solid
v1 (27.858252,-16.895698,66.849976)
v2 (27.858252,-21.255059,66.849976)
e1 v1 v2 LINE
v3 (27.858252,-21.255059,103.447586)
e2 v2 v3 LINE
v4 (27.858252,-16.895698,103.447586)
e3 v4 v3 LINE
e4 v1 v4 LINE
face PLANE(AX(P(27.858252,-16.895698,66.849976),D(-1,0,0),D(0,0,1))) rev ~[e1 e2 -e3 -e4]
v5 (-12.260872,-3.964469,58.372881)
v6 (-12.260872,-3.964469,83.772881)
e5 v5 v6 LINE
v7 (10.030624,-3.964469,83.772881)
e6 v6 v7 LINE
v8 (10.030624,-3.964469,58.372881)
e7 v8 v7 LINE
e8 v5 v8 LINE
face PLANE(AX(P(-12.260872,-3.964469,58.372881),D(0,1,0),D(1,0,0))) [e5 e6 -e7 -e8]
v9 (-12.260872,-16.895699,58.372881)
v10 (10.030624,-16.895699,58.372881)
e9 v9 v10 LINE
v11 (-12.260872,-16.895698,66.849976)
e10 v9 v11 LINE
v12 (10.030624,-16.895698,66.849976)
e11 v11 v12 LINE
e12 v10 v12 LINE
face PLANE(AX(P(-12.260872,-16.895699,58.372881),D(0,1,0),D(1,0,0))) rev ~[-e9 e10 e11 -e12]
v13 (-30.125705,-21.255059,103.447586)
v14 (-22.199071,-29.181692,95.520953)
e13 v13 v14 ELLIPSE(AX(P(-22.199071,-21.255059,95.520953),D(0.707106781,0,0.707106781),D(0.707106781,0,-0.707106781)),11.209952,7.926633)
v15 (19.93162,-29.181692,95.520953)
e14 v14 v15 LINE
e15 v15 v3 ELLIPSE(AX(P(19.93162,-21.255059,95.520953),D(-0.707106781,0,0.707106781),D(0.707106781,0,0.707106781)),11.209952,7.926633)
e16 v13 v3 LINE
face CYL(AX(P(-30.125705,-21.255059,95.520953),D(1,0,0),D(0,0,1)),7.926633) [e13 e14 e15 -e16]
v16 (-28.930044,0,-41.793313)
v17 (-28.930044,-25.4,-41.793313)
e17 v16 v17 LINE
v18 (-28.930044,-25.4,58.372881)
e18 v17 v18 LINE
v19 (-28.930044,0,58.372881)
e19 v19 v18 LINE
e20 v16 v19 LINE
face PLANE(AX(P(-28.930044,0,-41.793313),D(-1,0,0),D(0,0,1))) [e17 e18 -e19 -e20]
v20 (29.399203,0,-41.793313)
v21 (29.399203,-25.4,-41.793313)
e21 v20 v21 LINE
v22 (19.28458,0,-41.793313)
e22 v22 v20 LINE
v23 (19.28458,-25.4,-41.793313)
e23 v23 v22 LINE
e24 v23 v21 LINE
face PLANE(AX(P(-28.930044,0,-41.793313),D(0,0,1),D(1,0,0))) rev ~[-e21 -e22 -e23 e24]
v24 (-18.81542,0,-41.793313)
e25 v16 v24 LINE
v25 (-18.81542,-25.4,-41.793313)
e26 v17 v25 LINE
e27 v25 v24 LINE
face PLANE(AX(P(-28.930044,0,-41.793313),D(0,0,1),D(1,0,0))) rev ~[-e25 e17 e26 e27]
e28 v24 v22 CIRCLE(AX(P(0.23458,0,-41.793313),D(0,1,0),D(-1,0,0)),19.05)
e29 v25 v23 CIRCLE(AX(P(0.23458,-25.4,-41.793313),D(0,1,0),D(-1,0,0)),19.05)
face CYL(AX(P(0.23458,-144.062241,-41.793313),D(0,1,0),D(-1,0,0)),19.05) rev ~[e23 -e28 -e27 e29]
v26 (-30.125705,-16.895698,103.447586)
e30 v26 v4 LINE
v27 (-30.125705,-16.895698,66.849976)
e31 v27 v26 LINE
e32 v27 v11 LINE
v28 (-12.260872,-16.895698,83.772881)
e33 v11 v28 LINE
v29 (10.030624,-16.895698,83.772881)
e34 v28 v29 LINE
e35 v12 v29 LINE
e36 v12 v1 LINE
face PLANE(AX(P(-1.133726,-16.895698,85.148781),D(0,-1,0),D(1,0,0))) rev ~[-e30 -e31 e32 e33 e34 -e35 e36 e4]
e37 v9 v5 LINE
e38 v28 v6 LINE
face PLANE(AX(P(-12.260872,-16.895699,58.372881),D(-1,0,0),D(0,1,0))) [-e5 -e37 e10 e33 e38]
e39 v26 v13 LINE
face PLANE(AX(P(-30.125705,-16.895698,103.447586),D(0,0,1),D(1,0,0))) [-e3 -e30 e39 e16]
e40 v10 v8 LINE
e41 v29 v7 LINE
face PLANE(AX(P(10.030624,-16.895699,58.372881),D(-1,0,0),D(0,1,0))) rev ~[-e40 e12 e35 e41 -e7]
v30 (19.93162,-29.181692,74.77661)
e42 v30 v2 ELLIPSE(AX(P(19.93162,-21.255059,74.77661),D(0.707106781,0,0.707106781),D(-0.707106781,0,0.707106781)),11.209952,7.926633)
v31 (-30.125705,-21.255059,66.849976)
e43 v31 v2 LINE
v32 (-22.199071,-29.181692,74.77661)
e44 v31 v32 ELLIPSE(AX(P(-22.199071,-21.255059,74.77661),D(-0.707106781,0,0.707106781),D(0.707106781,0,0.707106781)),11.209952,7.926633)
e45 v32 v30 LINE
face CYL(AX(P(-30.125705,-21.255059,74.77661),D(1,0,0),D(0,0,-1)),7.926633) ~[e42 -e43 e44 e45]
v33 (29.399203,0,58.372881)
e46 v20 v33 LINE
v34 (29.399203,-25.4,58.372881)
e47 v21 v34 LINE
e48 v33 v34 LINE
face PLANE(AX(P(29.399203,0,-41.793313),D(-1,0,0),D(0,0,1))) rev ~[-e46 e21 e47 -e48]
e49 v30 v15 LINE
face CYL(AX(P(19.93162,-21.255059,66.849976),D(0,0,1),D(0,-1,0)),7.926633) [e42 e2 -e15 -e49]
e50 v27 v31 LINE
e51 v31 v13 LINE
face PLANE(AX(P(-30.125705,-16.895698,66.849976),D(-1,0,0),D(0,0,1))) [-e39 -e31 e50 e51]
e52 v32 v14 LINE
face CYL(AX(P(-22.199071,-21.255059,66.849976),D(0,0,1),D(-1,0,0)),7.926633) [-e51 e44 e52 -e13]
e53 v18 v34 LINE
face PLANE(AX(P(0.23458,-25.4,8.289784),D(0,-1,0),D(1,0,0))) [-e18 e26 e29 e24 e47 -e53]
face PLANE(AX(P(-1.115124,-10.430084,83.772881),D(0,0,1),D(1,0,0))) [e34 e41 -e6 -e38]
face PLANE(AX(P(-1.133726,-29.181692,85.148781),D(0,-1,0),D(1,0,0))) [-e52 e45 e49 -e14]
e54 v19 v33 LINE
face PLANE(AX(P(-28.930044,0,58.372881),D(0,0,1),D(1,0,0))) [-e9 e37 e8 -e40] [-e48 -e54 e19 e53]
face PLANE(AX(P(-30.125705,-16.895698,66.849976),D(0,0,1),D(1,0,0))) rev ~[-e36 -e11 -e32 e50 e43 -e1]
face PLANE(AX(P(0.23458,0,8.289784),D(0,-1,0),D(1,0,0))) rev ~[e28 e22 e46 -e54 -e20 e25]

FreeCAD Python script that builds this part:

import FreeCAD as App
import Part
import Sketcher
from FreeCAD import Vector
Q = App.Units.Quantity


def edges_at(feature, points):
    """Names of the edges that pass closest to the given points."""
    edges = feature.Shape.Edges
    near = lambda p: min(range(len(edges)), key=lambda i: edges[i].distToShape(Part.Vertex(*p))[0])
    return sorted({f"Edge{near(p) + 1}" for p in points})

doc = App.newDocument("Part")
body = doc.addObject("PartDesign::Body", "Body")

# Sketch on XZ plane
sketch1 = body.newObject("Sketcher::SketchObject", "Sketch")
sketch1.AttachmentSupport = (doc.getObject("XZ_Plane"), [""])
sketch1.MapMode = "FlatFace"
sketch1.addGeometry([
    Part.LineSegment(Vector(-29, 58, 0), Vector(-29, -42, 0)),
    Part.LineSegment(Vector(-29, -42, 0), Vector(29, -42, 0)),
    Part.LineSegment(Vector(29, -42, 0), Vector(29, 58, 0)),
    Part.LineSegment(Vector(29, 58, 0), Vector(-29, 58, 0)),
], False)
sketch1.addConstraint([
    Sketcher.Constraint("Coincident", 0, 2, 1, 1),
    Sketcher.Constraint("Coincident", 1, 2, 2, 1),
    Sketcher.Constraint("Coincident", 2, 2, 3, 1),
    Sketcher.Constraint("Coincident", 3, 2, 0, 1),
    Sketcher.Constraint("Vertical", 0),
    Sketcher.Constraint("Horizontal", 1),
    Sketcher.Constraint("Vertical", 2),
    Sketcher.Constraint("Horizontal", 3),
    Sketcher.Constraint("DistanceX", 1, 1, 1, 2, Q("58.329247 mm")),
    Sketcher.Constraint("DistanceY", 0, 2, 0, 1, Q("100.166194 mm")),
    Sketcher.Constraint("DistanceY", -1, 1, 2, 2, Q("58.372881 mm")),
    Sketcher.Constraint("DistanceX", 0, 2, -1, 1, Q("28.930044 mm")),
])
pad1 = body.newObject("PartDesign::Pad", "Pad")
pad1.Profile = sketch1
pad1.Length = Q("1 in")

# Sketch on XZ plane
sketch2 = body.newObject("Sketcher::SketchObject", "Sketch001")
sketch2.AttachmentSupport = (doc.getObject("XZ_Plane"), [""])
sketch2.MapMode = "FlatFace"
sketch2.AttachmentOffset = App.Placement(Vector(0, 0, 1 * 25.4), App.Rotation())
sketch2.addGeometry(Part.Circle(Vector(0, -42, 0), Vector(0, 0, 1), 19), False)
sketch2.addConstraint([
    Sketcher.Constraint("Diameter", 0, Q("1.5 in")),
    Sketcher.Constraint("DistanceX", -1, 1, 0, 3, Q("0.23458 mm")),
    Sketcher.Constraint("DistanceY", 0, 3, -1, 1, Q("41.793313 mm")),
])
doc.recompute()
hole = body.newObject("PartDesign::Hole", "Hole")
hole.Profile = sketch2
hole.ThreadType = "None"
hole.Diameter = Q("1.5 in")
hole.DepthType = "ThroughAll"

# Sketch on XY plane
sketch3 = body.newObject("Sketcher::SketchObject", "Sketch002")
sketch3.AttachmentSupport = (doc.getObject("XY_Plane"), [""])
sketch3.MapMode = "FlatFace"
sketch3.AttachmentOffset = App.Placement(Vector(0, 0, 58.372881), App.Rotation())
sketch3.addGeometry([
    Part.LineSegment(Vector(-12, -4, 0), Vector(-12, -17, 0)),
    Part.LineSegment(Vector(-12, -17, 0), Vector(10, -17, 0)),
    Part.LineSegment(Vector(10, -17, 0), Vector(10, -4, 0)),
    Part.LineSegment(Vector(10, -4, 0), Vector(-12, -4, 0)),
], False)
sketch3.addConstraint([
    Sketcher.Constraint("Coincident", 0, 2, 1, 1),
    Sketcher.Constraint("Coincident", 1, 2, 2, 1),
    Sketcher.Constraint("Coincident", 2, 2, 3, 1),
    Sketcher.Constraint("Coincident", 3, 2, 0, 1),
    Sketcher.Constraint("Vertical", 0),
    Sketcher.Constraint("Horizontal", 1),
    Sketcher.Constraint("Vertical", 2),
    Sketcher.Constraint("Horizontal", 3),
    Sketcher.Constraint("DistanceY", 0, 2, 0, 1, Q("12.931229 mm")),
    Sketcher.Constraint("DistanceY", 0, 2, -1, 1, Q("16.895699 mm")),
    Sketcher.Constraint("DistanceX", 1, 1, 1, 2, Q("22.291495 mm")),
    Sketcher.Constraint("DistanceX", 0, 2, -1, 1, Q("12.260872 mm")),
])
pad2 = body.newObject("PartDesign::Pad", "Pad001")
pad2.Profile = sketch3
pad2.Length = Q("1 in")

# Sketch on XZ plane
sketch4 = body.newObject("Sketcher::SketchObject", "Sketch003")
sketch4.AttachmentSupport = (doc.getObject("XZ_Plane"), [""])
sketch4.MapMode = "FlatFace"
sketch4.AttachmentOffset = App.Placement(Vector(0, 0, 16.895698), App.Rotation())
sketch4.addGeometry([
    Part.LineSegment(Vector(-30, 103, 0), Vector(-30, 67, 0)),
    Part.LineSegment(Vector(-30, 67, 0), Vector(28, 67, 0)),
    Part.LineSegment(Vector(28, 67, 0), Vector(28, 103, 0)),
    Part.LineSegment(Vector(28, 103, 0), Vector(-30, 103, 0)),
], False)
sketch4.addConstraint([
    Sketcher.Constraint("Coincident", 0, 2, 1, 1),
    Sketcher.Constraint("Coincident", 1, 2, 2, 1),
    Sketcher.Constraint("Coincident", 2, 2, 3, 1),
    Sketcher.Constraint("Coincident", 3, 2, 0, 1),
    Sketcher.Constraint("Vertical", 0),
    Sketcher.Constraint("Horizontal", 1),
    Sketcher.Constraint("Vertical", 2),
    Sketcher.Constraint("Horizontal", 3),
    Sketcher.Constraint("DistanceY", 0, 2, 0, 1, Q("36.597609 mm")),
    Sketcher.Constraint("DistanceX", 1, 1, 1, 2, Q("57.983957 mm")),
    Sketcher.Constraint("DistanceX", 0, 2, -1, 1, Q("30.125705 mm")),
    Sketcher.Constraint("DistanceY", -1, 1, 0, 2, Q("66.849976 mm")),
])
pad3 = body.newObject("PartDesign::Pad", "Pad002")
pad3.Profile = sketch4
pad3.Length = 12.285994
doc.recompute()

fillet = body.newObject("PartDesign::Fillet", "Fillet")
fillet.Base = (pad3, edges_at(pad3, [
    (27.858, -29.182, 85.149),
    (-1.134, -29.182, 103.448),
    (-1.134, -29.182, 66.85),
    (-30.126, -29.182, 85.149),
]))
fillet.Radius = 7.926633

doc.recompute()
